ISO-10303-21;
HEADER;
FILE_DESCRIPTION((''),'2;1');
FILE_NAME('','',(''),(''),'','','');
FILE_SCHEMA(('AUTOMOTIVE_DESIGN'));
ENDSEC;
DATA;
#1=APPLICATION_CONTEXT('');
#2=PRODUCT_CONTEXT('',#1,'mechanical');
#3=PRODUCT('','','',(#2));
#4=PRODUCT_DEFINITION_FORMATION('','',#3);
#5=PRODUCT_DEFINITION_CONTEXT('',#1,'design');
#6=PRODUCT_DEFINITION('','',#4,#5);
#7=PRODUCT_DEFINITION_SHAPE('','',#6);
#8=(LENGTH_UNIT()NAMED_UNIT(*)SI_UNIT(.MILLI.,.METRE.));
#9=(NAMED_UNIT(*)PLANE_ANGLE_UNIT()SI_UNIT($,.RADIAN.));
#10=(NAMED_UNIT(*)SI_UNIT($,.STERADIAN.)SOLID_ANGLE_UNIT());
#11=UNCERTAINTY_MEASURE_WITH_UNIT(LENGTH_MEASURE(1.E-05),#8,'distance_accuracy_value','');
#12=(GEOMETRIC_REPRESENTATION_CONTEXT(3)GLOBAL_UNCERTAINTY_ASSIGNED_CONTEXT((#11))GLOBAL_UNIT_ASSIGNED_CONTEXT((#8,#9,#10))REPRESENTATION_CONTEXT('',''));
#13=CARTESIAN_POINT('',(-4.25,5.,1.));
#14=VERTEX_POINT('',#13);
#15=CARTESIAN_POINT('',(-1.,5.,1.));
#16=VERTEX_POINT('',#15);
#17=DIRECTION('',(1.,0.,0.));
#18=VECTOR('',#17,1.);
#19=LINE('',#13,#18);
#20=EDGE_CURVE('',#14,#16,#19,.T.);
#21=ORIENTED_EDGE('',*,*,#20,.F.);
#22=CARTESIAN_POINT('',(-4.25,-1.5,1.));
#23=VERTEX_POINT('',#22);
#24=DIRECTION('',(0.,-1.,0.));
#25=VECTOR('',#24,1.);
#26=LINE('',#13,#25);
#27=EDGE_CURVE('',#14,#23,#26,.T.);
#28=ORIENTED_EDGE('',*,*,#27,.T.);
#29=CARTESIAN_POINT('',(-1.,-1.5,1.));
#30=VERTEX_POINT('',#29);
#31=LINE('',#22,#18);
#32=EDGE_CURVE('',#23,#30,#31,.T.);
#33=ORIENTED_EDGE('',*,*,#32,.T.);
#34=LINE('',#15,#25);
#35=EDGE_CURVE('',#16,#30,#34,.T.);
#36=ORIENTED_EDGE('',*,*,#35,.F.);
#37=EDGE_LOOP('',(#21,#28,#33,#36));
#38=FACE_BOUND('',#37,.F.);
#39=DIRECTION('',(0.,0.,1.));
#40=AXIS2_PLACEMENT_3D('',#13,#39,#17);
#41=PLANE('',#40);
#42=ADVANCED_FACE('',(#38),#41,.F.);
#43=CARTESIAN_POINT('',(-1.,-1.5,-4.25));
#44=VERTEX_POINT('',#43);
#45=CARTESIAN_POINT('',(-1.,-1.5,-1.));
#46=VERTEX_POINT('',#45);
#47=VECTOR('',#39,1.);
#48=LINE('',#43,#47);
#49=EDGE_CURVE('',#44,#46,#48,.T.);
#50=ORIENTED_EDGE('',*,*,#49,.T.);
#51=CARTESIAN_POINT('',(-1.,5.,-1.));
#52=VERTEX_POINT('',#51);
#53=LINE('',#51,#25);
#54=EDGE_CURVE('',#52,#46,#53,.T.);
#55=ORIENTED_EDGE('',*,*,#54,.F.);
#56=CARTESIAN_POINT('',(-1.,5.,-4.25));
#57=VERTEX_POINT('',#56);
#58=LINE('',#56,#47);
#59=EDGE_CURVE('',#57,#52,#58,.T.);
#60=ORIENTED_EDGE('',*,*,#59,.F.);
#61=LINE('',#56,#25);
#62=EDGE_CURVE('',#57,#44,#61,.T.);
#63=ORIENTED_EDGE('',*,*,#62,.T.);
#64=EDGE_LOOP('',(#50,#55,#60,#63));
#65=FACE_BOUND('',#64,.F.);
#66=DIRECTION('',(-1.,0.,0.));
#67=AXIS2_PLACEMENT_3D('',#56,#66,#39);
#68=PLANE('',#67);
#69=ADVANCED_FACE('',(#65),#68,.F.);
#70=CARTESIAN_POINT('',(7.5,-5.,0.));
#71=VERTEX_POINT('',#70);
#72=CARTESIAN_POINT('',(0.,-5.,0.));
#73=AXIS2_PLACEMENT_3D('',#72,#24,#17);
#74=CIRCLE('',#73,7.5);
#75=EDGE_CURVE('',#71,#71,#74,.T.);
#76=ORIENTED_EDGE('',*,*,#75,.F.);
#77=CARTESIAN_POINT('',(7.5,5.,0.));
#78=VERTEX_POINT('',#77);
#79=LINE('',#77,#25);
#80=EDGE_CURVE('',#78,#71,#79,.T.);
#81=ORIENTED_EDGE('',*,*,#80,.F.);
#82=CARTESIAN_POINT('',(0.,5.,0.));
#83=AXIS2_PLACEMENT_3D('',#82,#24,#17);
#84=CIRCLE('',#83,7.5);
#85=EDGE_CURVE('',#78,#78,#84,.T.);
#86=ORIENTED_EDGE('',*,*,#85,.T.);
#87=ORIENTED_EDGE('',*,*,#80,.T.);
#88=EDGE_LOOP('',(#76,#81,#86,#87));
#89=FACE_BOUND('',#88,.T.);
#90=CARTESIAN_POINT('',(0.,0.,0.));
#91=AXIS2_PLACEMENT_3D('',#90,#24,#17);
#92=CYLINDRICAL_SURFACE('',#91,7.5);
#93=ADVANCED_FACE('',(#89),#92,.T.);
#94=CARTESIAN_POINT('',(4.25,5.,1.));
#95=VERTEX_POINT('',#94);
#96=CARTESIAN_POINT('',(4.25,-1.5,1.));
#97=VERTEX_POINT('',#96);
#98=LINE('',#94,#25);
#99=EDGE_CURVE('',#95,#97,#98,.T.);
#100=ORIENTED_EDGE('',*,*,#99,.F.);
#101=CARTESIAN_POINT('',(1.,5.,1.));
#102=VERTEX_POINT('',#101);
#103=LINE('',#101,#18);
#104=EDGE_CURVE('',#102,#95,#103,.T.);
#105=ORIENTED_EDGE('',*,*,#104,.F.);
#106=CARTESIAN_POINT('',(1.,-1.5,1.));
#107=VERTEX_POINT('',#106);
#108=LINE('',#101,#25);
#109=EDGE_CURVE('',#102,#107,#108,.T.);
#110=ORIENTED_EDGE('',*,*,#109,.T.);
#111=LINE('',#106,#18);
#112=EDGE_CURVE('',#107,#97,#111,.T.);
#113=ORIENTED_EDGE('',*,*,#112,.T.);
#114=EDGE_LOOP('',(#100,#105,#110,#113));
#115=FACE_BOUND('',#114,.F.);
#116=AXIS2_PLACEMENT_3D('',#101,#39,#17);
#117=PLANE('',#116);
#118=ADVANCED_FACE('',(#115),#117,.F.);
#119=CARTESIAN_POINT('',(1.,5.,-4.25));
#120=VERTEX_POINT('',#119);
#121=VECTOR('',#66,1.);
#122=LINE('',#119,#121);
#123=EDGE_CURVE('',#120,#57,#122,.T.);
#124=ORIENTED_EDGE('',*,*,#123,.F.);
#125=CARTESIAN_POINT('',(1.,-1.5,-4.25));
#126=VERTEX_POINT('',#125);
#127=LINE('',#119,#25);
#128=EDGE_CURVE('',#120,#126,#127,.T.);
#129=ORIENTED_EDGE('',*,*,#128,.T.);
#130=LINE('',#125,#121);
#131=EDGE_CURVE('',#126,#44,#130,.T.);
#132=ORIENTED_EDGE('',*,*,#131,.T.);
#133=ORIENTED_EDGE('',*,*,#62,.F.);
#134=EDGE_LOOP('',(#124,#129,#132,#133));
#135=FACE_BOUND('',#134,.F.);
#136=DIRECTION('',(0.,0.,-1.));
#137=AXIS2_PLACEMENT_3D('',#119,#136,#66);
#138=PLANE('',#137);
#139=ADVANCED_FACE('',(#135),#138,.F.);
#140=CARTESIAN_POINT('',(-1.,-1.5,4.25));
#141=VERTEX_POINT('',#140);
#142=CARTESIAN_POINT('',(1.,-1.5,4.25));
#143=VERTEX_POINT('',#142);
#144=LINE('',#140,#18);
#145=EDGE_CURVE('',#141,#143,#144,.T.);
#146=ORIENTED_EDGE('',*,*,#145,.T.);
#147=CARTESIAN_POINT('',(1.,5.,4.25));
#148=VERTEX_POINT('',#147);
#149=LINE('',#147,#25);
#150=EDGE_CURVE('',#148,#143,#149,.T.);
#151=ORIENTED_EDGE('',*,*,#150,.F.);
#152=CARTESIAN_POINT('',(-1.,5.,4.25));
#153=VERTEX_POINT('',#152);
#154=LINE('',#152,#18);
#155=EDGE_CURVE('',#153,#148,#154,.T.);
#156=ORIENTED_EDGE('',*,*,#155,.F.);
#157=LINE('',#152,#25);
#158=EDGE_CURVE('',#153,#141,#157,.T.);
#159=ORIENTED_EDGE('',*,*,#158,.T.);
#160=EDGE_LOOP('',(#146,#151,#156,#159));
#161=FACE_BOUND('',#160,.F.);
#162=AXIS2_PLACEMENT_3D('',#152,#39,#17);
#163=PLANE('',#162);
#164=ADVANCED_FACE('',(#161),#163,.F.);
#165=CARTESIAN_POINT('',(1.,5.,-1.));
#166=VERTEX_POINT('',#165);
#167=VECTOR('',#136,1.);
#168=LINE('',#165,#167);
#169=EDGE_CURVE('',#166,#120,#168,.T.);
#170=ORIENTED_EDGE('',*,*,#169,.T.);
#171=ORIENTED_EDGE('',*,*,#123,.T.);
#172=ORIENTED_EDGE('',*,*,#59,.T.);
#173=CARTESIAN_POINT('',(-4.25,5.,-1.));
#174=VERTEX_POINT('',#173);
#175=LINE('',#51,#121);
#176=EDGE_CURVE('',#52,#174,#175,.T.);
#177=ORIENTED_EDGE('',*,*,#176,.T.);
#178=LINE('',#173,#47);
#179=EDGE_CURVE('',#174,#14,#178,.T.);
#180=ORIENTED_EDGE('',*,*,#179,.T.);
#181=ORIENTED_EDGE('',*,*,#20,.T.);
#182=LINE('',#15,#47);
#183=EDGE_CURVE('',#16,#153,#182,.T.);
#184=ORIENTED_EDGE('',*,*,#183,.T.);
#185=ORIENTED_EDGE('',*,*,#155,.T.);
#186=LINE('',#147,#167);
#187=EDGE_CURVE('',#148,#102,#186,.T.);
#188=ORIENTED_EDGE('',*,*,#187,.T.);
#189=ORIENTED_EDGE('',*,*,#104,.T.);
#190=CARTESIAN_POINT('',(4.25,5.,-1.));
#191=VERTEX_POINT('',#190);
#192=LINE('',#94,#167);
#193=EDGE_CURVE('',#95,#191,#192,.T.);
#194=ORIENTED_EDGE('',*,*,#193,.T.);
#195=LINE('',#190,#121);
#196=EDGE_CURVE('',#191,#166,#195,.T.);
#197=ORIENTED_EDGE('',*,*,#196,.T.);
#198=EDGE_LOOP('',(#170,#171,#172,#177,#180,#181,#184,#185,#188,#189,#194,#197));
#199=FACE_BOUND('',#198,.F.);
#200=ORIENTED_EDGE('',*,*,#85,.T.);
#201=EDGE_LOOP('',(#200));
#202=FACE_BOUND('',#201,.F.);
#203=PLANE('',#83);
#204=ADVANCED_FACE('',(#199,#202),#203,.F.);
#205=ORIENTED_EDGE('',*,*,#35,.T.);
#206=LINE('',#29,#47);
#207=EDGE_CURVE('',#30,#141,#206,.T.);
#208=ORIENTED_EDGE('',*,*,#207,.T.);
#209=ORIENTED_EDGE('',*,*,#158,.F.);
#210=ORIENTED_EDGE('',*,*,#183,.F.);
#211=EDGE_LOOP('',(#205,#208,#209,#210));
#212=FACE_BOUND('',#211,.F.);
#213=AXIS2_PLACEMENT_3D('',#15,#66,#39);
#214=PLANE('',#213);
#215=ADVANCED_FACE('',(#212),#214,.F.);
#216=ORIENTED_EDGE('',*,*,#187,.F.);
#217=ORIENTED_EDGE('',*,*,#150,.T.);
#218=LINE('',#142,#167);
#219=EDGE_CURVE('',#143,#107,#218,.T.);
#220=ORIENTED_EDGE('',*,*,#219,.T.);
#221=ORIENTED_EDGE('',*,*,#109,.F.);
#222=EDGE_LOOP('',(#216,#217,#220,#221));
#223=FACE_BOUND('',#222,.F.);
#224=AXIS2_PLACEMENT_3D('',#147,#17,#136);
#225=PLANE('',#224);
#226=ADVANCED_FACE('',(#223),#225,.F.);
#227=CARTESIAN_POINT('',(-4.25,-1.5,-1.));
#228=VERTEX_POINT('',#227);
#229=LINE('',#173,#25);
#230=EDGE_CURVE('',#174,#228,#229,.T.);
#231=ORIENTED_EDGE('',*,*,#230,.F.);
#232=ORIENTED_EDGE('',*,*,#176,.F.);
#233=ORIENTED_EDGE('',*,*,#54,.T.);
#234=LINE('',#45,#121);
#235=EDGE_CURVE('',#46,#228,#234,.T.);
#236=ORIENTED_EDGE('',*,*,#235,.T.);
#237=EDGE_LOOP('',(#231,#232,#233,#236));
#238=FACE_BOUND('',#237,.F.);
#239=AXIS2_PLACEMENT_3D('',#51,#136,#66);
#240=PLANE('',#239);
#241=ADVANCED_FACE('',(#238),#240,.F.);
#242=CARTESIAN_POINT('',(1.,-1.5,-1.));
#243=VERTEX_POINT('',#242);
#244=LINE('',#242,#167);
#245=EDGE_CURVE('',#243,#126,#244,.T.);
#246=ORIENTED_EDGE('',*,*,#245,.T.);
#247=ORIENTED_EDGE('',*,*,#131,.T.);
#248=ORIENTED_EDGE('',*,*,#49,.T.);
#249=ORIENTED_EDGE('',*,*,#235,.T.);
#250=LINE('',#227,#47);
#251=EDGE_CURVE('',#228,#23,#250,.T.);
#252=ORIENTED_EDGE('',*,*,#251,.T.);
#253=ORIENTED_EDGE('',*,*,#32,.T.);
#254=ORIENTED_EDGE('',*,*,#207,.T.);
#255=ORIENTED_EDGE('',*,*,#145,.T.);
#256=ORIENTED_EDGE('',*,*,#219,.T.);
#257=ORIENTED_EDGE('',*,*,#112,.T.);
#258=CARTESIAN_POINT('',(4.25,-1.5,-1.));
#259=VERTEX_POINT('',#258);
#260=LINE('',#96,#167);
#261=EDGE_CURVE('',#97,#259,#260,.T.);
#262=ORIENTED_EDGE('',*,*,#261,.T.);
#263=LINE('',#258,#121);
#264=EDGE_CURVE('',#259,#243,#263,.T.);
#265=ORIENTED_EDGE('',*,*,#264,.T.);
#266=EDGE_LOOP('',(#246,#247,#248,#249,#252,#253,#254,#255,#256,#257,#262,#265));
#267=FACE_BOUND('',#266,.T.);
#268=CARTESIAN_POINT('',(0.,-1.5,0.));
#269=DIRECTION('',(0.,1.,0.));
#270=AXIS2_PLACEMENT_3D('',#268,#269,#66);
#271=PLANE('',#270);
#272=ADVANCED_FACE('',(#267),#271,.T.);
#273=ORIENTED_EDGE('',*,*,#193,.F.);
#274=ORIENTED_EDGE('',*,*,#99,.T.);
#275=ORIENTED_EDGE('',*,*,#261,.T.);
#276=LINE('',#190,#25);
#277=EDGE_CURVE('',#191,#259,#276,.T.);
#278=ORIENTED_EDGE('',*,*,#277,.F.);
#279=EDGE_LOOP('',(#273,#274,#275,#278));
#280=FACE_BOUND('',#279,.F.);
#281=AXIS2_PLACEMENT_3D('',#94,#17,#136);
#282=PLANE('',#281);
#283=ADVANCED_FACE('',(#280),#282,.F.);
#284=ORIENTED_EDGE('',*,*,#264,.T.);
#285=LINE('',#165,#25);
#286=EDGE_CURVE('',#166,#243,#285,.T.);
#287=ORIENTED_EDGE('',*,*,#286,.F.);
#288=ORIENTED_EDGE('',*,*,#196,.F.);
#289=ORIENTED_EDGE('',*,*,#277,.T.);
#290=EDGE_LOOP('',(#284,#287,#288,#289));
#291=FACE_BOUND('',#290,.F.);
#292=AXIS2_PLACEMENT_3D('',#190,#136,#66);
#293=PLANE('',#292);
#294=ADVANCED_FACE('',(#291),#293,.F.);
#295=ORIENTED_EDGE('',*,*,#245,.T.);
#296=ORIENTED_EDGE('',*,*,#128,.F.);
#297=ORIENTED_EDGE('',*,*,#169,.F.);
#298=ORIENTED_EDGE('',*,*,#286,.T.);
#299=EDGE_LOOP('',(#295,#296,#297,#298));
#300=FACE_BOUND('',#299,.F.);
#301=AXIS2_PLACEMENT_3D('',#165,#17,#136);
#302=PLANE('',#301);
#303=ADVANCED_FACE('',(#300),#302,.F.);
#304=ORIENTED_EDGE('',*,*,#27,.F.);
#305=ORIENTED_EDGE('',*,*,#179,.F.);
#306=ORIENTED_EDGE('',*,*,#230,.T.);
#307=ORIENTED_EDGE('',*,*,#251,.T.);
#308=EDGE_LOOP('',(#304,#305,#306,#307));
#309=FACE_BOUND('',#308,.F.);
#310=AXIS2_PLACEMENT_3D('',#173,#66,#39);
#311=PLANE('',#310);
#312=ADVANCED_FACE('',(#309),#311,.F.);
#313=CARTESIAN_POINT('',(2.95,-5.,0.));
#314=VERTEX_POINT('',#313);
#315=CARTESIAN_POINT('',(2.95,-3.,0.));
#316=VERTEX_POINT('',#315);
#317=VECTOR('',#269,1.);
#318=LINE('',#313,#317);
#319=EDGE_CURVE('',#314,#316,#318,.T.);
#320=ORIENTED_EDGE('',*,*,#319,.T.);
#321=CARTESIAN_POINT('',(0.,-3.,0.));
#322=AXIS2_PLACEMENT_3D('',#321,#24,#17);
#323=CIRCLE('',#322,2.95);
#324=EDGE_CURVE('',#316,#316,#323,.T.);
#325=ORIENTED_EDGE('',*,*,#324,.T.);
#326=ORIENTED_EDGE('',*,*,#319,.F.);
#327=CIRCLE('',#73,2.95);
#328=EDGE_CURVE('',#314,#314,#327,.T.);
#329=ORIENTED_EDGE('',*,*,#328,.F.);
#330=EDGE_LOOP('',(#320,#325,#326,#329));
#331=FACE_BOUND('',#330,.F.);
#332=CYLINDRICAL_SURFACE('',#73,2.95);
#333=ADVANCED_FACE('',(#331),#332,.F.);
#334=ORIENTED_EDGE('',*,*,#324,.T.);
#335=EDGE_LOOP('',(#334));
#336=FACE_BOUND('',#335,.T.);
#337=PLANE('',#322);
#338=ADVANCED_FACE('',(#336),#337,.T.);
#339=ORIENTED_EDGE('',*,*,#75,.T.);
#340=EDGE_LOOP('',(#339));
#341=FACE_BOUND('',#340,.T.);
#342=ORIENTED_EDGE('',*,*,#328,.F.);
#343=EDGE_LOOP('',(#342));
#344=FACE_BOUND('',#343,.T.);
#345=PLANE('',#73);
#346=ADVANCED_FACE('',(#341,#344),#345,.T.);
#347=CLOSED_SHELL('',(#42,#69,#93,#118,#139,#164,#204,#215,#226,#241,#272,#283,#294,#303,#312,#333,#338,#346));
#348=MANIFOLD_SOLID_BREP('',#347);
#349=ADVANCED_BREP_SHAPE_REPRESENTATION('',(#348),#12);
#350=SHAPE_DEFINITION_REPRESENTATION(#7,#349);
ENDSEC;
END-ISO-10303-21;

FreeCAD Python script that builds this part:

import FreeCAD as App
import Part
import Sketcher

V = App.Vector
Q = App.Units.Quantity

doc = App.newDocument("Part")
body = doc.addObject("PartDesign::Body", "Body")

sketch1 = body.newObject("Sketcher::SketchObject", "Sketch")
sketch1.AttachmentSupport = (doc.getObject("XZ_Plane"), [""])
sketch1.MapMode = "FlatFace"
sketch1.addGeometry(Part.Circle(V(0, 0, 0), V(0, 0, 1), 7.5), False)
sketch1.addConstraint(Sketcher.Constraint("Coincident", 0, 3, -1, 1))
sketch1.addConstraint(Sketcher.Constraint("Diameter", 0, Q("15 mm")))
pad1 = body.newObject("PartDesign::Pad", "Pad")
pad1.Profile = sketch1
pad1.Length = 10
pad1.Midplane = True

sketch2 = body.newObject("Sketcher::SketchObject", "Sketch001")
sketch2.AttachmentSupport = (doc.getObject("XZ_Plane"), [""])
sketch2.MapMode = "FlatFace"
sketch2.AttachmentOffset = App.Placement(V(0, 0, 5), App.Rotation())
sketch2.addGeometry(Part.Circle(V(0, 0, 0), V(0, 0, 1), 2.95), False)
sketch2.addConstraint(Sketcher.Constraint("Coincident", 0, 3, -1, 1))
sketch2.addConstraint(Sketcher.Constraint("Diameter", 0, Q("5.9 mm")))
pocket1 = body.newObject("PartDesign::Pocket", "Pocket")
pocket1.Profile = sketch2
pocket1.Length = 2

sketch3 = body.newObject("Sketcher::SketchObject", "Sketch002")
sketch3.AttachmentSupport = (doc.getObject("XZ_Plane"), [""])
sketch3.MapMode = "FlatFace"
sketch3.AttachmentOffset = App.Placement(V(0, 0, -5), App.Rotation())
sketch3.addGeometry(Part.LineSegment(V(-1, 4.25, 0), V(1, 4.25, 0)), False)
sketch3.addGeometry(Part.LineSegment(V(1, 4.25, 0), V(1, 1, 0)), False)
sketch3.addGeometry(Part.LineSegment(V(1, 1, 0), V(4.25, 1, 0)), False)
sketch3.addGeometry(Part.LineSegment(V(4.25, 1, 0), V(4.25, -1, 0)), False)
sketch3.addGeometry(Part.LineSegment(V(4.25, -1, 0), V(1, -1, 0)), False)
sketch3.addGeometry(Part.LineSegment(V(1, -1, 0), V(1, -4.25, 0)), False)
sketch3.addGeometry(Part.LineSegment(V(1, -4.25, 0), V(-1, -4.25, 0)), False)
sketch3.addGeometry(Part.LineSegment(V(-1, -4.25, 0), V(-1, -1, 0)), False)
sketch3.addGeometry(Part.LineSegment(V(-1, -1, 0), V(-4.25, -1, 0)), False)
sketch3.addGeometry(Part.LineSegment(V(-4.25, -1, 0), V(-4.25, 1, 0)), False)
sketch3.addGeometry(Part.LineSegment(V(-4.25, 1, 0), V(-1, 1, 0)), False)
sketch3.addGeometry(Part.LineSegment(V(-1, 1, 0), V(-1, 4.25, 0)), False)
sketch3.addConstraint(Sketcher.Constraint("Coincident", 0, 2, 1, 1))
sketch3.addConstraint(Sketcher.Constraint("Coincident", 1, 2, 2, 1))
sketch3.addConstraint(Sketcher.Constraint("Coincident", 2, 2, 3, 1))
sketch3.addConstraint(Sketcher.Constraint("Coincident", 3, 2, 4, 1))
sketch3.addConstraint(Sketcher.Constraint("Coincident", 4, 2, 5, 1))
sketch3.addConstraint(Sketcher.Constraint("Coincident", 5, 2, 6, 1))
sketch3.addConstraint(Sketcher.Constraint("Coincident", 6, 2, 7, 1))
sketch3.addConstraint(Sketcher.Constraint("Coincident", 7, 2, 8, 1))
sketch3.addConstraint(Sketcher.Constraint("Coincident", 8, 2, 9, 1))
sketch3.addConstraint(Sketcher.Constraint("Coincident", 9, 2, 10, 1))
sketch3.addConstraint(Sketcher.Constraint("Coincident", 10, 2, 11, 1))
sketch3.addConstraint(Sketcher.Constraint("Coincident", 11, 2, 0, 1))
sketch3.addConstraint(Sketcher.Constraint("Horizontal", 0))
sketch3.addConstraint(Sketcher.Constraint("Vertical", 1))
sketch3.addConstraint(Sketcher.Constraint("Horizontal", 2))
sketch3.addConstraint(Sketcher.Constraint("Vertical", 3))
sketch3.addConstraint(Sketcher.Constraint("Horizontal", 4))
sketch3.addConstraint(Sketcher.Constraint("Vertical", 5))
sketch3.addConstraint(Sketcher.Constraint("Horizontal", 6))
sketch3.addConstraint(Sketcher.Constraint("Vertical", 7))
sketch3.addConstraint(Sketcher.Constraint("Horizontal", 8))
sketch3.addConstraint(Sketcher.Constraint("Vertical", 9))
sketch3.addConstraint(Sketcher.Constraint("Horizontal", 10))
sketch3.addConstraint(Sketcher.Constraint("Vertical", 11))
sketch3.addConstraint(Sketcher.Constraint("Symmetric", 0, 2, 6, 2, -1, 1))
sketch3.addConstraint(Sketcher.Constraint("Symmetric", 2, 2, 8, 2, -1, 1))
sketch3.addConstraint(Sketcher.Constraint("Symmetric", 4, 2, 10, 2, -1, 1))
sketch3.addConstraint(Sketcher.Constraint("Symmetric", 4, 2, 7, 2, -2))
sketch3.addConstraint(Sketcher.Constraint("Equal", 10, 1))
sketch3.addConstraint(Sketcher.Constraint("Equal", 6, 3))
sketch3.addConstraint(Sketcher.Constraint("DistanceX", 0, 1, 0, 2, Q("2 mm")))
sketch3.addConstraint(Sketcher.Constraint("DistanceX", 2, 1, 2, 2, Q("3.25 mm")))
pocket2 = body.newObject("PartDesign::Pocket", "Pocket001")
pocket2.Profile = sketch3
pocket2.Length = 6.5
pocket2.Reversed = True

doc.recompute()
